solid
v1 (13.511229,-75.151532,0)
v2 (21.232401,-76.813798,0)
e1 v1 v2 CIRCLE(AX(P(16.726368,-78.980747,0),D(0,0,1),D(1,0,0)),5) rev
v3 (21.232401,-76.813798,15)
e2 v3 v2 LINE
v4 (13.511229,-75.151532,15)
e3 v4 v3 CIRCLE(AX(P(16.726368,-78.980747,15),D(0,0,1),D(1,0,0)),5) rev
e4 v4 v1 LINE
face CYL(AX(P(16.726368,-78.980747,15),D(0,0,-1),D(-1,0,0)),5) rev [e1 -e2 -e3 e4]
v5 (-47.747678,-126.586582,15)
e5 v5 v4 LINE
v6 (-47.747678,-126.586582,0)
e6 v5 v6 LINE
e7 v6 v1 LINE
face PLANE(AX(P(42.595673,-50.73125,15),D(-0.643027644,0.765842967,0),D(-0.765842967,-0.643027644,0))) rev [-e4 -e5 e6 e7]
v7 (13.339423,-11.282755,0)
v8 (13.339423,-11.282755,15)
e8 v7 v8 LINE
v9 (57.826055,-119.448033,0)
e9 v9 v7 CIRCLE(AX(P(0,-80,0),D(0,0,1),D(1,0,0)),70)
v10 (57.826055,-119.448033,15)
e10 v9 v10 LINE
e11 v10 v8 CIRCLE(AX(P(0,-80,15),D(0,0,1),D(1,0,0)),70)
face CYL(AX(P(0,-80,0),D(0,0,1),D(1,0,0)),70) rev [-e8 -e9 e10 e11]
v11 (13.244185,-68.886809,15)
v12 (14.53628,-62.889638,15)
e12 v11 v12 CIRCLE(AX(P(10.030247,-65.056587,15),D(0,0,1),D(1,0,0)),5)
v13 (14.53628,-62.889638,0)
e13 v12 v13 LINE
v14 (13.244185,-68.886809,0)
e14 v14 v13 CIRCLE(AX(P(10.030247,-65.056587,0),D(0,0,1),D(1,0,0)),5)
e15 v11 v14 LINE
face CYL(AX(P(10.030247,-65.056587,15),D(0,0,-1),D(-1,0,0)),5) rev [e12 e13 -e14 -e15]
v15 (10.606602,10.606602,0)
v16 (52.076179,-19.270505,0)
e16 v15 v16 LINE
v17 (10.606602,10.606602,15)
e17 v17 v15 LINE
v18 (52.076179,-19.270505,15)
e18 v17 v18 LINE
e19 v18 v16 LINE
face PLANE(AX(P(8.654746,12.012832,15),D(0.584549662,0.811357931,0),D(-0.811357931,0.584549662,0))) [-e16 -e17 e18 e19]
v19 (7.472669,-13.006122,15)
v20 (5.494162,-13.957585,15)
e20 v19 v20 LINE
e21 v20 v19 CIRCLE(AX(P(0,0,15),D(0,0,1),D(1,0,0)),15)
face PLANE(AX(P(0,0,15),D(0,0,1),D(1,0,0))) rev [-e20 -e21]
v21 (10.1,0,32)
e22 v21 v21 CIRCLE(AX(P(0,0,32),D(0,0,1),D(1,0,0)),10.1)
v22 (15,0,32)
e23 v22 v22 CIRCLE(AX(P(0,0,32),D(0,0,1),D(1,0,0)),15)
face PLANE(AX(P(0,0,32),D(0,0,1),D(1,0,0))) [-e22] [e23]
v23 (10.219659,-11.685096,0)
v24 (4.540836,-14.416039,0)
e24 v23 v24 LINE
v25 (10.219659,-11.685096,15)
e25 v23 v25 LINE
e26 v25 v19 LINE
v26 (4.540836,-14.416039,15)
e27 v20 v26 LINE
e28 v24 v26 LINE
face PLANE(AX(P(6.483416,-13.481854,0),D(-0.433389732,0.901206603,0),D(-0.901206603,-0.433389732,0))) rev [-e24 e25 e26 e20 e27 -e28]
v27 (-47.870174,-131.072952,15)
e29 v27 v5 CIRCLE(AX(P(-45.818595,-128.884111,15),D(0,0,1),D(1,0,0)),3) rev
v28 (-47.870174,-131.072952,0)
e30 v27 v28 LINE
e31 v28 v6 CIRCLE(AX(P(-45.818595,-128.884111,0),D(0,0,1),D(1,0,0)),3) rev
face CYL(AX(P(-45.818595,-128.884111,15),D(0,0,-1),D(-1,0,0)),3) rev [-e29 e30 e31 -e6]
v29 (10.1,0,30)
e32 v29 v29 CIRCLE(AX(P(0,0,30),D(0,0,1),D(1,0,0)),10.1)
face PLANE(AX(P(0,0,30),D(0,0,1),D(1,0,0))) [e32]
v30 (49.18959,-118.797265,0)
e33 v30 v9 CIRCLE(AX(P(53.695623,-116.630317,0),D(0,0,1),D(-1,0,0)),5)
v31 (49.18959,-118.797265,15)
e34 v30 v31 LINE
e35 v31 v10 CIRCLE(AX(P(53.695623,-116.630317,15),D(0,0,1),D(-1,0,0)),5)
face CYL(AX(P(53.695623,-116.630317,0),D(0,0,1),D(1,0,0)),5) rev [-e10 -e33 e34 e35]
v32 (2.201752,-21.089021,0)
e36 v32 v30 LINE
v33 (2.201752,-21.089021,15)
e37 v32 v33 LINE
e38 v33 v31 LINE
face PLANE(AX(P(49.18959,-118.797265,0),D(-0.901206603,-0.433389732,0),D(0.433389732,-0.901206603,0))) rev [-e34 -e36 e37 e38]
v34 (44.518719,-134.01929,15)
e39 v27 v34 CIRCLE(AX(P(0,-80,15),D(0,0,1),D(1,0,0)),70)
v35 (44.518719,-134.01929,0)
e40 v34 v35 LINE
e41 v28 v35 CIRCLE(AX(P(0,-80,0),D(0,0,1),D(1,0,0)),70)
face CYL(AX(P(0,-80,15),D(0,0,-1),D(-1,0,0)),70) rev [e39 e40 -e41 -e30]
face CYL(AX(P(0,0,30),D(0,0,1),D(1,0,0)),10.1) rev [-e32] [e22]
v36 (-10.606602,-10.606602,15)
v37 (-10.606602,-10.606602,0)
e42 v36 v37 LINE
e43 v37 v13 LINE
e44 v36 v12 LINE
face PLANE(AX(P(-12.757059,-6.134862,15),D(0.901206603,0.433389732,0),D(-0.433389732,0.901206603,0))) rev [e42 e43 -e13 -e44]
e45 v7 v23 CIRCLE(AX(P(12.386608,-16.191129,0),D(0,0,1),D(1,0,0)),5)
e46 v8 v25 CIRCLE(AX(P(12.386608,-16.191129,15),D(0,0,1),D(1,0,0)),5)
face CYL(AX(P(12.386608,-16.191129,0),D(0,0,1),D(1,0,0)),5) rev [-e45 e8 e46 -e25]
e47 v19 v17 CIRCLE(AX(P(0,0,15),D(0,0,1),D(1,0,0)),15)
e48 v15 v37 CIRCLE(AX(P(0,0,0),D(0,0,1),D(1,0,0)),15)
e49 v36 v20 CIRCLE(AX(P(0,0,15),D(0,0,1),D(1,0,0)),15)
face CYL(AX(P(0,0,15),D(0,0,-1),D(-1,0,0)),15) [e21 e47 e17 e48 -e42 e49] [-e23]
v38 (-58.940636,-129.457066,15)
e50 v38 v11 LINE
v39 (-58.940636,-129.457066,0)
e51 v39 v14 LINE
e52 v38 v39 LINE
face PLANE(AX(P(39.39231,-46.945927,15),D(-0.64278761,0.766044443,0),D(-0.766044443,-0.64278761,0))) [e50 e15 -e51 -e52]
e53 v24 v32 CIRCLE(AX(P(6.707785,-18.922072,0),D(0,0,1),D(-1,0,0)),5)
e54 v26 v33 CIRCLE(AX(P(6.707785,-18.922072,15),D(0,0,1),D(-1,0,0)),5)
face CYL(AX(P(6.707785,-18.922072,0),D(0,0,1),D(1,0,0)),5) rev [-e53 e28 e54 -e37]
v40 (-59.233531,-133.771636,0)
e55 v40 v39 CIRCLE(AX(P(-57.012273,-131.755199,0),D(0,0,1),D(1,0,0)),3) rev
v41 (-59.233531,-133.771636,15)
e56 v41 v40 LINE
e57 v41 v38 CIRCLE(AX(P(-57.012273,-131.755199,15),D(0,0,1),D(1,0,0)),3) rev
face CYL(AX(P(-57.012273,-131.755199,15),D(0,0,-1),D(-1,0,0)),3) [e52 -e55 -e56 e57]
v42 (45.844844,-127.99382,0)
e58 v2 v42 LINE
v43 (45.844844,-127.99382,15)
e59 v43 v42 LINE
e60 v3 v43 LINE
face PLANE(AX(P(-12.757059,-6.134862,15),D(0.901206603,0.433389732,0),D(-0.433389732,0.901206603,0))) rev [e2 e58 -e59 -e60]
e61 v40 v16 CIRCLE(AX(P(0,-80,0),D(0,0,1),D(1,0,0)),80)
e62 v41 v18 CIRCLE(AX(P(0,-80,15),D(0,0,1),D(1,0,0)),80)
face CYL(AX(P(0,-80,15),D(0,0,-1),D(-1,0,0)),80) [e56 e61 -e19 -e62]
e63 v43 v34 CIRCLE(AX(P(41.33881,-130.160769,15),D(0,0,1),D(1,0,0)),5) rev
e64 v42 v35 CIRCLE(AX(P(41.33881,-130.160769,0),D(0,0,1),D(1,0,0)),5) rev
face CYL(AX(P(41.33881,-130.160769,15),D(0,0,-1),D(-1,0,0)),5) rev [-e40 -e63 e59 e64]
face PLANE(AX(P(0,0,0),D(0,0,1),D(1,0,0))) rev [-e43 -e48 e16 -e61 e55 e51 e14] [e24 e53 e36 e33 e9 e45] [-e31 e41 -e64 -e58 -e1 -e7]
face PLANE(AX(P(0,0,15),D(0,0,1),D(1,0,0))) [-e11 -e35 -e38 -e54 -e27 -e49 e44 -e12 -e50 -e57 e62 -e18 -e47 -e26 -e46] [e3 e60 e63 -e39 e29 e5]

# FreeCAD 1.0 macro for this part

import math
import FreeCAD as App
import Part
import Sketcher

V = App.Vector
Q = App.Units.Quantity

doc = App.newDocument("Part")
params = doc.addObject("Spreadsheet::Sheet", "Params")
for row, (alias, value) in enumerate([
    ("sketch1_radius", "3 mm"),
    ("sketch1_radius2", "80 mm"),
    ("sketch1_radius3", "15 mm"),
    ("sketch1_radius4", "5 mm"),
    ("sketch1_radius5", "70 mm"),
    ("pad1_length", "15 mm"),
    ("sketch2_radius", "5 mm"),
    ("sketch2_radius2", "70 mm"),
    ("pocket1_length", "15 mm"),
    ("sketch3_diameter", "30 mm"),
    ("pad2_length", "17 mm"),
    ("sketch4_diameter", "20.2 mm"),
    ("pocket2_length", "2 mm"),
], start=1):
    params.set(f"A{row}", alias)
    params.set(f"B{row}", "=" + value)
    params.setAlias(f"B{row}", alias)

body = doc.addObject("PartDesign::Body", "Body")

sketch1 = body.newObject("Sketcher::SketchObject", "Sketch")
sketch1.AttachmentSupport = (doc.getObject("XY_Plane"), [""])
sketch1.MapMode = "FlatFace"
sketch1.addGeometry([
    Part.LineSegment(V(-53.6, -125, 0), V(-58.9, -129.5, 0)),
    Part.ArcOfCircle(Part.Circle(V(-57, -131.8, 0), V(0, 0, 1), 3), math.radians(130), math.radians(222)),
    Part.ArcOfCircle(Part.Circle(V(0, -80, 0), V(0, 0, 1), 80), math.radians(-138), math.radians(49)),
    Part.LineSegment(V(52.1, -19.3, 0), V(10.6, 10.6, 0)),
    Part.ArcOfCircle(Part.Circle(V(0, 0, 0), V(0, 0, 1), 15), math.radians(45), math.radians(225)),
    Part.LineSegment(V(-10.6, -10.6, 0), V(14.5, -62.9, 0)),
    Part.ArcOfCircle(Part.Circle(V(10, -65.1, 0), V(0, 0, 1), 5), math.radians(-50), math.radians(26)),
    Part.LineSegment(V(13.2, -68.9, 0), V(-53.6, -125, 0)),
    Part.ArcOfCircle(Part.Circle(V(16.7, -79, 0), V(0, 0, 1), 5), math.radians(26), math.radians(130)),
    Part.LineSegment(V(21.2, -76.8, 0), V(45.8, -128, 0)),
    Part.ArcOfCircle(Part.Circle(V(41.3, -130.2, 0), V(0, 0, 1), 5), math.radians(-51), math.radians(26)),
    Part.ArcOfCircle(Part.Circle(V(0, -80, 0), V(0, 0, 1), 70), math.radians(-133), math.radians(-51)),
    Part.ArcOfCircle(Part.Circle(V(-45.8, -128.9, 0), V(0, 0, 1), 3), math.radians(130), math.radians(227)),
    Part.LineSegment(V(-47.7, -126.6, 0), V(13.5, -75.2, 0)),
], False)
sketch1.addConstraint([
    Sketcher.Constraint("Tangent", 0, 2, 1, 1),
    Sketcher.Constraint("Tangent", 1, 2, 2, 1),
    Sketcher.Constraint("Coincident", 2, 2, 3, 1),
    Sketcher.Constraint("Coincident", 3, 2, 4, 1),
    Sketcher.Constraint("Coincident", 4, 2, 5, 1),
    Sketcher.Constraint("Tangent", 5, 2, 6, 2),
    Sketcher.Constraint("Tangent", 6, 1, 7, 1),
    Sketcher.Constraint("Coincident", 7, 2, 0, 1),
    Sketcher.Constraint("Tangent", 8, 1, 9, 1),
    Sketcher.Constraint("Tangent", 9, 2, 10, 2),
    Sketcher.Constraint("Tangent", 10, 1, 11, 2),
    Sketcher.Constraint("Tangent", 11, 1, 12, 2),
    Sketcher.Constraint("Tangent", 12, 1, 13, 1),
    Sketcher.Constraint("Tangent", 13, 2, 8, 2),
    Sketcher.Constraint("Coincident", 4, 3, -1, 1),
    Sketcher.Constraint("Coincident", 11, 3, 2, 3),
    Sketcher.Constraint("Equal", 6, 8),
    Sketcher.Constraint("Equal", 8, 10),
    Sketcher.Constraint("Equal", 1, 12),
    Sketcher.Constraint("PointOnObject", 2, 3, -2),
    Sketcher.Constraint("Parallel", 0, 7),
    Sketcher.Constraint("Parallel", 5, 9),
    Sketcher.Constraint("Radius", 1, 3.0),
    Sketcher.Constraint("Radius", 2, 80.0),
    Sketcher.Constraint("Radius", 4, 15.0),
    Sketcher.Constraint("Radius", 6, 5.0),
    Sketcher.Constraint("Radius", 11, 70.0),
    Sketcher.Constraint("Angle", 0, Q("-140 deg")),
    Sketcher.Constraint("DistanceY", 2, 3, -1, 1, 80.0),
    Sketcher.Constraint("DistanceY", 1, 3, -1, 1, 131.755199),
    Sketcher.Constraint("DistanceX", -1, 1, 3, 2, 10.606602),
    Sketcher.Constraint("DistanceX", 4, 2, -1, 1, 10.606602),
    Sketcher.Constraint("DistanceX", -1, 1, 8, 1, 21.232401),
    Sketcher.Constraint("DistanceY", 8, 1, -1, 1, 76.813798),
    Sketcher.Constraint("DistanceX", 5, 2, 2, 2, 37.539899),
    Sketcher.Constraint("DistanceX", 1, 3, 11, 1, 9.142099),
    Sketcher.Constraint("DistanceX", -1, 1, 10, 3, 41.33881),
    Sketcher.Constraint("DistanceX", 7, 2, -1, 1, 53.623111),
])
sketch1.setExpression("Constraints[22]", "Params.sketch1_radius")
sketch1.setExpression("Constraints[23]", "Params.sketch1_radius2")
sketch1.setExpression("Constraints[24]", "Params.sketch1_radius3")
sketch1.setExpression("Constraints[25]", "Params.sketch1_radius4")
sketch1.setExpression("Constraints[26]", "Params.sketch1_radius5")
pad1 = body.newObject("PartDesign::Pad", "Pad")
pad1.Profile = sketch1
pad1.setExpression("Length", "Params.pad1_length")

sketch2 = body.newObject("Sketcher::SketchObject", "Sketch001")
sketch2.AttachmentSupport = (doc.getObject("XY_Plane"), [""])
sketch2.MapMode = "FlatFace"
sketch2.addGeometry([
    Part.LineSegment(V(2.2, -21.1, 0), V(49.2, -118.8, 0)),
    Part.ArcOfCircle(Part.Circle(V(53.7, -116.6, 0), V(0, 0, 1), 5), math.radians(-154), math.radians(-34)),
    Part.ArcOfCircle(Part.Circle(V(0, -80, 0), V(0, 0, 1), 70), math.radians(-34), math.radians(79)),
    Part.ArcOfCircle(Part.Circle(V(12.4, -16.2, 0), V(0, 0, 1), 5), math.radians(79), math.radians(116)),
    Part.LineSegment(V(10.2, -11.7, 0), V(6.5, -13.5, 0)),
    Part.LineSegment(V(6.5, -13.5, 0), V(4.5, -14.4, 0)),
    Part.ArcOfCircle(Part.Circle(V(6.7, -18.9, 0), V(0, 0, 1), 5), math.radians(116), math.radians(206)),
], False)
sketch2.addConstraint([
    Sketcher.Constraint("Tangent", 0, 2, 1, 1),
    Sketcher.Constraint("Tangent", 1, 2, 2, 1),
    Sketcher.Constraint("Tangent", 2, 2, 3, 1),
    Sketcher.Constraint("Tangent", 3, 2, 4, 1),
    Sketcher.Constraint("Coincident", 4, 2, 5, 1),
    Sketcher.Constraint("Tangent", 5, 2, 6, 1),
    Sketcher.Constraint("Tangent", 6, 2, 0, 1),
    Sketcher.Constraint("Equal", 1, 3),
    Sketcher.Constraint("Equal", 3, 6),
    Sketcher.Constraint("PointOnObject", 2, 3, -2),
    Sketcher.Constraint("Perpendicular", 0, 4),
    Sketcher.Constraint("Parallel", 4, 5),
    Sketcher.Constraint("Radius", 1, 5.0),
    Sketcher.Constraint("Radius", 2, 70.0),
    Sketcher.Constraint("DistanceY", 2, 3, -1, 1, 80.0),
    Sketcher.Constraint("DistanceX", 2, 2, 1, 3, 40.356199),
    Sketcher.Constraint("DistanceY", 4, 2, 2, 2, 2.199099),
    Sketcher.Constraint("Distance", 0, 108.419362),
    Sketcher.Constraint("Distance", 5, 2.155532),
])
sketch2.setExpression("Constraints[12]", "Params.sketch2_radius")
sketch2.setExpression("Constraints[13]", "Params.sketch2_radius2")
pocket1 = body.newObject("PartDesign::Pocket", "Pocket")
pocket1.Profile = sketch2
pocket1.setExpression("Length", "Params.pocket1_length")
pocket1.Reversed = True

sketch3 = body.newObject("Sketcher::SketchObject", "Sketch002")
sketch3.AttachmentSupport = (doc.getObject("XY_Plane"), [""])
sketch3.MapMode = "FlatFace"
sketch3.AttachmentOffset = App.Placement(V(0, 0, 15), App.Rotation())
sketch3.addGeometry(Part.Circle(V(0, 0, 0), V(0, 0, 1), 15), False)
sketch3.addConstraint([
    Sketcher.Constraint("Coincident", 0, 3, -1, 1),
    Sketcher.Constraint("Diameter", 0, 30.0),
])
sketch3.setExpression("Constraints[1]", "Params.sketch3_diameter")
pad2 = body.newObject("PartDesign::Pad", "Pad001")
pad2.Profile = sketch3
pad2.setExpression("Length", "Params.pad2_length")

sketch4 = body.newObject("Sketcher::SketchObject", "Sketch003")
sketch4.AttachmentSupport = (doc.getObject("XY_Plane"), [""])
sketch4.MapMode = "FlatFace"
sketch4.AttachmentOffset = App.Placement(V(0, 0, 32), App.Rotation())
sketch4.addGeometry(Part.Circle(V(0, 0, 0), V(0, 0, 1), 10), False)
sketch4.addConstraint([
    Sketcher.Constraint("Coincident", 0, 3, -1, 1),
    Sketcher.Constraint("Diameter", 0, 20.2),
])
sketch4.setExpression("Constraints[1]", "Params.sketch4_diameter")
pocket2 = body.newObject("PartDesign::Pocket", "Pocket001")
pocket2.Profile = sketch4
pocket2.setExpression("Length", "Params.pocket2_length")

doc.recompute()
